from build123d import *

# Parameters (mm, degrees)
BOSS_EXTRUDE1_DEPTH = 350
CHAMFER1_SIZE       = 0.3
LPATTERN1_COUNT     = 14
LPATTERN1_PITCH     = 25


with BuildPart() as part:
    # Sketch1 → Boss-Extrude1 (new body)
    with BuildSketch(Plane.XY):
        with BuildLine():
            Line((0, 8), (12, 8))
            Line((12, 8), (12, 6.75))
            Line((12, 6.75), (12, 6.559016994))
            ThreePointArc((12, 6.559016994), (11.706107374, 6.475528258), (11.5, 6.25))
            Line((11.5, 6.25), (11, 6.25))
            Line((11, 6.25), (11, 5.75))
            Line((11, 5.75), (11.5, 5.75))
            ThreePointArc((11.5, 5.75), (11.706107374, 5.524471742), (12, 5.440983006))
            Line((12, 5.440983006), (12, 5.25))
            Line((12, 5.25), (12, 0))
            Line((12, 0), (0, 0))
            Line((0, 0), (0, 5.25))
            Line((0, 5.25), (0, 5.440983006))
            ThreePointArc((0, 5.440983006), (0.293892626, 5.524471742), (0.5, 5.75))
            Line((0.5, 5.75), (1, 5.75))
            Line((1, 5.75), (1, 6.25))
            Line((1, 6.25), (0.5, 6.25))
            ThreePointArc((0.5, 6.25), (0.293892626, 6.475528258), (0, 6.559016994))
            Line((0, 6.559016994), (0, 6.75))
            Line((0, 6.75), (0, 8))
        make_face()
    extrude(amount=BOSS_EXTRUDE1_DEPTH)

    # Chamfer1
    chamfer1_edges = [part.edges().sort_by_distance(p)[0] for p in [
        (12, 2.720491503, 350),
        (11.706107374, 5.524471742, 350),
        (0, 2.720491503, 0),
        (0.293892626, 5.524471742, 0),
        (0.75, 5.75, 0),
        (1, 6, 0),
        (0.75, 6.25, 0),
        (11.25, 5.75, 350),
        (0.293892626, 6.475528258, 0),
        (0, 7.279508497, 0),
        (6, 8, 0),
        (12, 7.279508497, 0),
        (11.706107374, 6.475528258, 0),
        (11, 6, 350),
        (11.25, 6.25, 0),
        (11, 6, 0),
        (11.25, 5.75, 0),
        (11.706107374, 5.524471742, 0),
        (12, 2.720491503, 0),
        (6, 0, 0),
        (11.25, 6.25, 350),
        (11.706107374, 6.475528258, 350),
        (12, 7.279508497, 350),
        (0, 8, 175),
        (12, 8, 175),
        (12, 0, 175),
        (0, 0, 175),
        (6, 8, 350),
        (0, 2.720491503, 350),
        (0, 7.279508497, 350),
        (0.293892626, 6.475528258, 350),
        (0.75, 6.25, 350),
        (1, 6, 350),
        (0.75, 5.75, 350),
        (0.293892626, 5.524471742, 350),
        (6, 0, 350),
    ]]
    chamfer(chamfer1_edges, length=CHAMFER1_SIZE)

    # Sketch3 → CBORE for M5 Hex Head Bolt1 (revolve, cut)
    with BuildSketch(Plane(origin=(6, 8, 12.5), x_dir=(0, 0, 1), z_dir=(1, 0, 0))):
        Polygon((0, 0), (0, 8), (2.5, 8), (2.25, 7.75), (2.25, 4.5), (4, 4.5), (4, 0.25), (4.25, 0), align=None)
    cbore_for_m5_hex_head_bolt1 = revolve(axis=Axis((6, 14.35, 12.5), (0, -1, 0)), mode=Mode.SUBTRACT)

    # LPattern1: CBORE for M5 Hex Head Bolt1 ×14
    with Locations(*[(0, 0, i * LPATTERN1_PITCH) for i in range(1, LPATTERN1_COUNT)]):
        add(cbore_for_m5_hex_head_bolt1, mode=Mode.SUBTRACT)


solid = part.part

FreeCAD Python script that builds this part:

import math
import FreeCAD as App
import Part
import Sketcher
Q = App.Units.Quantity


def edges_at(feature, points):
    """Names of the edges that pass closest to the given points."""
    edges = feature.Shape.Edges
    near = lambda p: min(range(len(edges)), key=lambda i: edges[i].distToShape(Part.Vertex(*p))[0])
    return sorted({f"Edge{near(p) + 1}" for p in points})


def add_polygon(sketch, points):
    """Adds a closed chain of lines whose ends are joined by coincident constraints."""
    first, n = sketch.GeometryCount, len(points)
    for a, b in zip(points, points[1:] + points[:1]):
        sketch.addGeometry(Part.LineSegment(App.Vector(*a, 0), App.Vector(*b, 0)), False)
    for i in range(n):
        sketch.addConstraint(Sketcher.Constraint("Coincident", first + i, 2, first + (i + 1) % n, 1))

doc = App.newDocument("Part")
body = doc.addObject("PartDesign::Body", "Body")

# Sketch on XY plane
sketch1 = doc.addObject("Sketcher::SketchObject", "Sketch")
body.addObject(sketch1)
sketch1.AttachmentSupport = (doc.XY_Plane, [""])
sketch1.MapMode = "FlatFace"
sketch1.addGeometry([
    Part.LineSegment(App.Vector(12, 8, 0), App.Vector(0, 8, 0)),  # 0
    Part.LineSegment(App.Vector(0, 8, 0), App.Vector(0, 6.6, 0)),  # 1
    Part.ArcOfCircle(Part.Circle(App.Vector(0, 6, 0), App.Vector(0, 0, 1), 0.6), math.radians(27), math.radians(90)),  # 2
    Part.LineSegment(App.Vector(0.5, 6.2, 0), App.Vector(1, 6.2, 0)),  # 3
    Part.LineSegment(App.Vector(1, 6.2, 0), App.Vector(1, 5.8, 0)),  # 4
    Part.LineSegment(App.Vector(1, 5.8, 0), App.Vector(0.5, 5.8, 0)),  # 5
    Part.ArcOfCircle(Part.Circle(App.Vector(0, 6, 0), App.Vector(0, 0, 1), 0.6), math.radians(-90), math.radians(-27)),  # 6
    Part.LineSegment(App.Vector(0, 5.4, 0), App.Vector(0, 0, 0)),  # 7
    Part.LineSegment(App.Vector(0, 0, 0), App.Vector(12, 0, 0)),  # 8
    Part.LineSegment(App.Vector(12, 0, 0), App.Vector(12, 5.4, 0)),  # 9
    Part.ArcOfCircle(Part.Circle(App.Vector(12, 6, 0), App.Vector(0, 0, 1), 0.6), math.radians(-153), math.radians(-90)),  # 10
    Part.LineSegment(App.Vector(11.5, 5.8, 0), App.Vector(11, 5.8, 0)),  # 11
    Part.LineSegment(App.Vector(11, 5.8, 0), App.Vector(11, 6.2, 0)),  # 12
    Part.LineSegment(App.Vector(11, 6.2, 0), App.Vector(11.5, 6.2, 0)),  # 13
    Part.ArcOfCircle(Part.Circle(App.Vector(12, 6, 0), App.Vector(0, 0, 1), 0.6), math.radians(90), math.radians(153)),  # 14
    Part.LineSegment(App.Vector(12, 6.6, 0), App.Vector(12, 8, 0)),  # 15
], False)
sketch1.addConstraint([
    Sketcher.Constraint("Coincident", 0, 2, 1, 1),
    Sketcher.Constraint("Coincident", 1, 2, 2, 2),
    Sketcher.Constraint("Coincident", 2, 1, 3, 1),
    Sketcher.Constraint("Coincident", 3, 2, 4, 1),
    Sketcher.Constraint("Coincident", 4, 2, 5, 1),
    Sketcher.Constraint("Coincident", 5, 2, 6, 2),
    Sketcher.Constraint("Coincident", 6, 1, 7, 1),
    Sketcher.Constraint("Coincident", 7, 2, 8, 1),
    Sketcher.Constraint("Coincident", 8, 2, 9, 1),
    Sketcher.Constraint("Coincident", 9, 2, 10, 2),
    Sketcher.Constraint("Coincident", 10, 1, 11, 1),
    Sketcher.Constraint("Coincident", 11, 2, 12, 1),
    Sketcher.Constraint("Coincident", 12, 2, 13, 1),
    Sketcher.Constraint("Coincident", 13, 2, 14, 2),
    Sketcher.Constraint("Coincident", 14, 1, 15, 1),
    Sketcher.Constraint("Coincident", 15, 2, 0, 1),
    Sketcher.Constraint("Horizontal", 0),
    Sketcher.Constraint("Vertical", 1),
    Sketcher.Constraint("Horizontal", 3),
    Sketcher.Constraint("Vertical", 4),
    Sketcher.Constraint("Horizontal", 5),
    Sketcher.Constraint("Vertical", 7),
    Sketcher.Constraint("Horizontal", 8),
    Sketcher.Constraint("Vertical", 9),
    Sketcher.Constraint("Horizontal", 11),
    Sketcher.Constraint("Vertical", 12),
    Sketcher.Constraint("Horizontal", 13),
    Sketcher.Constraint("Vertical", 15),
    Sketcher.Constraint("Coincident", 7, 2, -1, 1),
    Sketcher.Constraint("Coincident", 6, 3, 2, 3),
    Sketcher.Constraint("Coincident", 14, 3, 10, 3),
    Sketcher.Constraint("Equal", 2, 6),
    Sketcher.Constraint("Equal", 6, 10),
    Sketcher.Constraint("Equal", 10, 14),
    Sketcher.Constraint("PointOnObject", 2, 3, -2),
    Sketcher.Constraint("PointOnObject", 0, 2, -2),
    Sketcher.Constraint("Horizontal", 6, 3, 10, 3),
    Sketcher.Constraint("Horizontal", 5, 2, 10, 1),
    Sketcher.Constraint("Horizontal", 3, 2, 12, 2),
    Sketcher.Constraint("Vertical", 2, 1, 5, 2),
    Sketcher.Constraint("Vertical", 14, 3, 8, 2),
    Sketcher.Constraint("Vertical", 9, 2, 14, 1),
    Sketcher.Constraint("Equal", 5, 11),
    Sketcher.Constraint("Equal", 13, 4),
    Sketcher.Constraint("DistanceX", 0, 2, 0, 1, Q("12 mm")),
    Sketcher.Constraint("DistanceX", 3, 1, 3, 2, Q("0.5 mm")),
    Sketcher.Constraint("DistanceY", -1, 1, 2, 3, Q("6 mm")),
    Sketcher.Constraint("DistanceY", -1, 1, 0, 2, Q("8 mm")),
    Sketcher.Constraint("DistanceX", -1, 1, 3, 2, Q("1 mm")),
])
pad1 = doc.addObject("PartDesign::Pad", "Pad")
body.addObject(pad1)
pad1.Profile = sketch1
pad1.Length = 350
doc.recompute()

chamfer = doc.addObject("PartDesign::Chamfer", "Chamfer")
body.addObject(chamfer)
chamfer.Base = (pad1, edges_at(pad1, [
    (12, 2.72, 350),
    (11.706, 5.524, 350),
    (0, 2.72, 0),
    (0.294, 5.524, 0),
    (0.75, 5.75, 0),
    (1, 6, 0),
    (0.75, 6.25, 0),
    (11.25, 5.75, 350),
    (0.294, 6.476, 0),
    (0, 7.28, 0),
    (6, 8, 0),
    (12, 7.28, 0),
    (11.706, 6.476, 0),
    (11, 6, 350),
    (11.25, 6.25, 0),
    (11, 6, 0),
    (11.25, 5.75, 0),
    (11.706, 5.524, 0),
    (12, 2.72, 0),
    (6, 0, 0),
    (11.25, 6.25, 350),
    (11.706, 6.476, 350),
    (12, 7.28, 350),
    (0, 8, 175),
    (12, 8, 175),
    (12, 0, 175),
    (0, 0, 175),
    (6, 8, 350),
    (0, 2.72, 350),
    (0, 7.28, 350),
    (0.294, 6.476, 350),
    (0.75, 6.25, 350),
    (1, 6, 350),
    (0.75, 5.75, 350),
    (0.294, 5.524, 350),
    (6, 0, 350),
]))
chamfer.Size = 0.3

# Sketch on YZ plane
sketch2 = doc.addObject("Sketcher::SketchObject", "Sketch001")
body.addObject(sketch2)
sketch2.AttachmentSupport = (doc.YZ_Plane, [""])
sketch2.MapMode = "FlatFace"
sketch2.AttachmentOffset = App.Placement(App.Vector(0, 0, 6), App.Rotation())
add_polygon(sketch2, [(0, 12.5), (8, 12.5), (8, 16.75), (7.75, 16.5), (3.5, 16.5), (3.5, 14.75), (0.25, 14.75), (0, 15)])  # lines 0-7
sketch2.addGeometry(Part.LineSegment(App.Vector(8, 12.5, 0), App.Vector(0, 12.5, 0)), True)  # axis
sketch2.addConstraint([
    Sketcher.Constraint("Horizontal", 0),
    Sketcher.Constraint("Vertical", 1),
    Sketcher.Constraint("Horizontal", 3),
    Sketcher.Constraint("Vertical", 4),
    Sketcher.Constraint("Horizontal", 5),
    Sketcher.Constraint("Vertical", 7),
    Sketcher.Constraint("Horizontal", 8),
    Sketcher.Constraint("Coincident", 8, 1, 0, 2),
    Sketcher.Constraint("PointOnObject", 6, 2, -2),
    Sketcher.Constraint("PointOnObject", 8, 2, -2),
    Sketcher.Constraint("Perpendicular", 2, 6),
    Sketcher.Constraint("Equal", 3, 1),
    Sketcher.Constraint("Equal", 2, 6),
    Sketcher.Constraint("DistanceX", 0, 1, 0, 2, Q("8 mm")),
    Sketcher.Constraint("Angle", 2, Q("-135 deg")),
    Sketcher.Constraint("DistanceY", 7, 2, 7, 1, Q("2.5 mm")),
    Sketcher.Constraint("DistanceY", -1, 1, 6, 2, Q("15 mm")),
    Sketcher.Constraint("DistanceY", 0, 2, 2, 2, Q("4 mm")),
    Sketcher.Constraint("DistanceY", 4, 2, 1, 2, Q("2 mm")),
])
groove = doc.addObject("PartDesign::Groove", "Groove")
body.addObject(groove)
groove.Profile = sketch2
groove.ReferenceAxis = (sketch2, ["Axis0"])
groove.Angle = 360
doc.recompute()

linearpattern = doc.addObject("PartDesign::LinearPattern", "LinearPattern")
body.addObject(linearpattern)
linearpattern.Originals = [groove]
linearpattern.Direction = (doc.Z_Axis, [""])
linearpattern.Mode = "offset"
linearpattern.Offset = 25
linearpattern.Occurrences = 14
body.Tip = linearpattern

doc.recompute()
